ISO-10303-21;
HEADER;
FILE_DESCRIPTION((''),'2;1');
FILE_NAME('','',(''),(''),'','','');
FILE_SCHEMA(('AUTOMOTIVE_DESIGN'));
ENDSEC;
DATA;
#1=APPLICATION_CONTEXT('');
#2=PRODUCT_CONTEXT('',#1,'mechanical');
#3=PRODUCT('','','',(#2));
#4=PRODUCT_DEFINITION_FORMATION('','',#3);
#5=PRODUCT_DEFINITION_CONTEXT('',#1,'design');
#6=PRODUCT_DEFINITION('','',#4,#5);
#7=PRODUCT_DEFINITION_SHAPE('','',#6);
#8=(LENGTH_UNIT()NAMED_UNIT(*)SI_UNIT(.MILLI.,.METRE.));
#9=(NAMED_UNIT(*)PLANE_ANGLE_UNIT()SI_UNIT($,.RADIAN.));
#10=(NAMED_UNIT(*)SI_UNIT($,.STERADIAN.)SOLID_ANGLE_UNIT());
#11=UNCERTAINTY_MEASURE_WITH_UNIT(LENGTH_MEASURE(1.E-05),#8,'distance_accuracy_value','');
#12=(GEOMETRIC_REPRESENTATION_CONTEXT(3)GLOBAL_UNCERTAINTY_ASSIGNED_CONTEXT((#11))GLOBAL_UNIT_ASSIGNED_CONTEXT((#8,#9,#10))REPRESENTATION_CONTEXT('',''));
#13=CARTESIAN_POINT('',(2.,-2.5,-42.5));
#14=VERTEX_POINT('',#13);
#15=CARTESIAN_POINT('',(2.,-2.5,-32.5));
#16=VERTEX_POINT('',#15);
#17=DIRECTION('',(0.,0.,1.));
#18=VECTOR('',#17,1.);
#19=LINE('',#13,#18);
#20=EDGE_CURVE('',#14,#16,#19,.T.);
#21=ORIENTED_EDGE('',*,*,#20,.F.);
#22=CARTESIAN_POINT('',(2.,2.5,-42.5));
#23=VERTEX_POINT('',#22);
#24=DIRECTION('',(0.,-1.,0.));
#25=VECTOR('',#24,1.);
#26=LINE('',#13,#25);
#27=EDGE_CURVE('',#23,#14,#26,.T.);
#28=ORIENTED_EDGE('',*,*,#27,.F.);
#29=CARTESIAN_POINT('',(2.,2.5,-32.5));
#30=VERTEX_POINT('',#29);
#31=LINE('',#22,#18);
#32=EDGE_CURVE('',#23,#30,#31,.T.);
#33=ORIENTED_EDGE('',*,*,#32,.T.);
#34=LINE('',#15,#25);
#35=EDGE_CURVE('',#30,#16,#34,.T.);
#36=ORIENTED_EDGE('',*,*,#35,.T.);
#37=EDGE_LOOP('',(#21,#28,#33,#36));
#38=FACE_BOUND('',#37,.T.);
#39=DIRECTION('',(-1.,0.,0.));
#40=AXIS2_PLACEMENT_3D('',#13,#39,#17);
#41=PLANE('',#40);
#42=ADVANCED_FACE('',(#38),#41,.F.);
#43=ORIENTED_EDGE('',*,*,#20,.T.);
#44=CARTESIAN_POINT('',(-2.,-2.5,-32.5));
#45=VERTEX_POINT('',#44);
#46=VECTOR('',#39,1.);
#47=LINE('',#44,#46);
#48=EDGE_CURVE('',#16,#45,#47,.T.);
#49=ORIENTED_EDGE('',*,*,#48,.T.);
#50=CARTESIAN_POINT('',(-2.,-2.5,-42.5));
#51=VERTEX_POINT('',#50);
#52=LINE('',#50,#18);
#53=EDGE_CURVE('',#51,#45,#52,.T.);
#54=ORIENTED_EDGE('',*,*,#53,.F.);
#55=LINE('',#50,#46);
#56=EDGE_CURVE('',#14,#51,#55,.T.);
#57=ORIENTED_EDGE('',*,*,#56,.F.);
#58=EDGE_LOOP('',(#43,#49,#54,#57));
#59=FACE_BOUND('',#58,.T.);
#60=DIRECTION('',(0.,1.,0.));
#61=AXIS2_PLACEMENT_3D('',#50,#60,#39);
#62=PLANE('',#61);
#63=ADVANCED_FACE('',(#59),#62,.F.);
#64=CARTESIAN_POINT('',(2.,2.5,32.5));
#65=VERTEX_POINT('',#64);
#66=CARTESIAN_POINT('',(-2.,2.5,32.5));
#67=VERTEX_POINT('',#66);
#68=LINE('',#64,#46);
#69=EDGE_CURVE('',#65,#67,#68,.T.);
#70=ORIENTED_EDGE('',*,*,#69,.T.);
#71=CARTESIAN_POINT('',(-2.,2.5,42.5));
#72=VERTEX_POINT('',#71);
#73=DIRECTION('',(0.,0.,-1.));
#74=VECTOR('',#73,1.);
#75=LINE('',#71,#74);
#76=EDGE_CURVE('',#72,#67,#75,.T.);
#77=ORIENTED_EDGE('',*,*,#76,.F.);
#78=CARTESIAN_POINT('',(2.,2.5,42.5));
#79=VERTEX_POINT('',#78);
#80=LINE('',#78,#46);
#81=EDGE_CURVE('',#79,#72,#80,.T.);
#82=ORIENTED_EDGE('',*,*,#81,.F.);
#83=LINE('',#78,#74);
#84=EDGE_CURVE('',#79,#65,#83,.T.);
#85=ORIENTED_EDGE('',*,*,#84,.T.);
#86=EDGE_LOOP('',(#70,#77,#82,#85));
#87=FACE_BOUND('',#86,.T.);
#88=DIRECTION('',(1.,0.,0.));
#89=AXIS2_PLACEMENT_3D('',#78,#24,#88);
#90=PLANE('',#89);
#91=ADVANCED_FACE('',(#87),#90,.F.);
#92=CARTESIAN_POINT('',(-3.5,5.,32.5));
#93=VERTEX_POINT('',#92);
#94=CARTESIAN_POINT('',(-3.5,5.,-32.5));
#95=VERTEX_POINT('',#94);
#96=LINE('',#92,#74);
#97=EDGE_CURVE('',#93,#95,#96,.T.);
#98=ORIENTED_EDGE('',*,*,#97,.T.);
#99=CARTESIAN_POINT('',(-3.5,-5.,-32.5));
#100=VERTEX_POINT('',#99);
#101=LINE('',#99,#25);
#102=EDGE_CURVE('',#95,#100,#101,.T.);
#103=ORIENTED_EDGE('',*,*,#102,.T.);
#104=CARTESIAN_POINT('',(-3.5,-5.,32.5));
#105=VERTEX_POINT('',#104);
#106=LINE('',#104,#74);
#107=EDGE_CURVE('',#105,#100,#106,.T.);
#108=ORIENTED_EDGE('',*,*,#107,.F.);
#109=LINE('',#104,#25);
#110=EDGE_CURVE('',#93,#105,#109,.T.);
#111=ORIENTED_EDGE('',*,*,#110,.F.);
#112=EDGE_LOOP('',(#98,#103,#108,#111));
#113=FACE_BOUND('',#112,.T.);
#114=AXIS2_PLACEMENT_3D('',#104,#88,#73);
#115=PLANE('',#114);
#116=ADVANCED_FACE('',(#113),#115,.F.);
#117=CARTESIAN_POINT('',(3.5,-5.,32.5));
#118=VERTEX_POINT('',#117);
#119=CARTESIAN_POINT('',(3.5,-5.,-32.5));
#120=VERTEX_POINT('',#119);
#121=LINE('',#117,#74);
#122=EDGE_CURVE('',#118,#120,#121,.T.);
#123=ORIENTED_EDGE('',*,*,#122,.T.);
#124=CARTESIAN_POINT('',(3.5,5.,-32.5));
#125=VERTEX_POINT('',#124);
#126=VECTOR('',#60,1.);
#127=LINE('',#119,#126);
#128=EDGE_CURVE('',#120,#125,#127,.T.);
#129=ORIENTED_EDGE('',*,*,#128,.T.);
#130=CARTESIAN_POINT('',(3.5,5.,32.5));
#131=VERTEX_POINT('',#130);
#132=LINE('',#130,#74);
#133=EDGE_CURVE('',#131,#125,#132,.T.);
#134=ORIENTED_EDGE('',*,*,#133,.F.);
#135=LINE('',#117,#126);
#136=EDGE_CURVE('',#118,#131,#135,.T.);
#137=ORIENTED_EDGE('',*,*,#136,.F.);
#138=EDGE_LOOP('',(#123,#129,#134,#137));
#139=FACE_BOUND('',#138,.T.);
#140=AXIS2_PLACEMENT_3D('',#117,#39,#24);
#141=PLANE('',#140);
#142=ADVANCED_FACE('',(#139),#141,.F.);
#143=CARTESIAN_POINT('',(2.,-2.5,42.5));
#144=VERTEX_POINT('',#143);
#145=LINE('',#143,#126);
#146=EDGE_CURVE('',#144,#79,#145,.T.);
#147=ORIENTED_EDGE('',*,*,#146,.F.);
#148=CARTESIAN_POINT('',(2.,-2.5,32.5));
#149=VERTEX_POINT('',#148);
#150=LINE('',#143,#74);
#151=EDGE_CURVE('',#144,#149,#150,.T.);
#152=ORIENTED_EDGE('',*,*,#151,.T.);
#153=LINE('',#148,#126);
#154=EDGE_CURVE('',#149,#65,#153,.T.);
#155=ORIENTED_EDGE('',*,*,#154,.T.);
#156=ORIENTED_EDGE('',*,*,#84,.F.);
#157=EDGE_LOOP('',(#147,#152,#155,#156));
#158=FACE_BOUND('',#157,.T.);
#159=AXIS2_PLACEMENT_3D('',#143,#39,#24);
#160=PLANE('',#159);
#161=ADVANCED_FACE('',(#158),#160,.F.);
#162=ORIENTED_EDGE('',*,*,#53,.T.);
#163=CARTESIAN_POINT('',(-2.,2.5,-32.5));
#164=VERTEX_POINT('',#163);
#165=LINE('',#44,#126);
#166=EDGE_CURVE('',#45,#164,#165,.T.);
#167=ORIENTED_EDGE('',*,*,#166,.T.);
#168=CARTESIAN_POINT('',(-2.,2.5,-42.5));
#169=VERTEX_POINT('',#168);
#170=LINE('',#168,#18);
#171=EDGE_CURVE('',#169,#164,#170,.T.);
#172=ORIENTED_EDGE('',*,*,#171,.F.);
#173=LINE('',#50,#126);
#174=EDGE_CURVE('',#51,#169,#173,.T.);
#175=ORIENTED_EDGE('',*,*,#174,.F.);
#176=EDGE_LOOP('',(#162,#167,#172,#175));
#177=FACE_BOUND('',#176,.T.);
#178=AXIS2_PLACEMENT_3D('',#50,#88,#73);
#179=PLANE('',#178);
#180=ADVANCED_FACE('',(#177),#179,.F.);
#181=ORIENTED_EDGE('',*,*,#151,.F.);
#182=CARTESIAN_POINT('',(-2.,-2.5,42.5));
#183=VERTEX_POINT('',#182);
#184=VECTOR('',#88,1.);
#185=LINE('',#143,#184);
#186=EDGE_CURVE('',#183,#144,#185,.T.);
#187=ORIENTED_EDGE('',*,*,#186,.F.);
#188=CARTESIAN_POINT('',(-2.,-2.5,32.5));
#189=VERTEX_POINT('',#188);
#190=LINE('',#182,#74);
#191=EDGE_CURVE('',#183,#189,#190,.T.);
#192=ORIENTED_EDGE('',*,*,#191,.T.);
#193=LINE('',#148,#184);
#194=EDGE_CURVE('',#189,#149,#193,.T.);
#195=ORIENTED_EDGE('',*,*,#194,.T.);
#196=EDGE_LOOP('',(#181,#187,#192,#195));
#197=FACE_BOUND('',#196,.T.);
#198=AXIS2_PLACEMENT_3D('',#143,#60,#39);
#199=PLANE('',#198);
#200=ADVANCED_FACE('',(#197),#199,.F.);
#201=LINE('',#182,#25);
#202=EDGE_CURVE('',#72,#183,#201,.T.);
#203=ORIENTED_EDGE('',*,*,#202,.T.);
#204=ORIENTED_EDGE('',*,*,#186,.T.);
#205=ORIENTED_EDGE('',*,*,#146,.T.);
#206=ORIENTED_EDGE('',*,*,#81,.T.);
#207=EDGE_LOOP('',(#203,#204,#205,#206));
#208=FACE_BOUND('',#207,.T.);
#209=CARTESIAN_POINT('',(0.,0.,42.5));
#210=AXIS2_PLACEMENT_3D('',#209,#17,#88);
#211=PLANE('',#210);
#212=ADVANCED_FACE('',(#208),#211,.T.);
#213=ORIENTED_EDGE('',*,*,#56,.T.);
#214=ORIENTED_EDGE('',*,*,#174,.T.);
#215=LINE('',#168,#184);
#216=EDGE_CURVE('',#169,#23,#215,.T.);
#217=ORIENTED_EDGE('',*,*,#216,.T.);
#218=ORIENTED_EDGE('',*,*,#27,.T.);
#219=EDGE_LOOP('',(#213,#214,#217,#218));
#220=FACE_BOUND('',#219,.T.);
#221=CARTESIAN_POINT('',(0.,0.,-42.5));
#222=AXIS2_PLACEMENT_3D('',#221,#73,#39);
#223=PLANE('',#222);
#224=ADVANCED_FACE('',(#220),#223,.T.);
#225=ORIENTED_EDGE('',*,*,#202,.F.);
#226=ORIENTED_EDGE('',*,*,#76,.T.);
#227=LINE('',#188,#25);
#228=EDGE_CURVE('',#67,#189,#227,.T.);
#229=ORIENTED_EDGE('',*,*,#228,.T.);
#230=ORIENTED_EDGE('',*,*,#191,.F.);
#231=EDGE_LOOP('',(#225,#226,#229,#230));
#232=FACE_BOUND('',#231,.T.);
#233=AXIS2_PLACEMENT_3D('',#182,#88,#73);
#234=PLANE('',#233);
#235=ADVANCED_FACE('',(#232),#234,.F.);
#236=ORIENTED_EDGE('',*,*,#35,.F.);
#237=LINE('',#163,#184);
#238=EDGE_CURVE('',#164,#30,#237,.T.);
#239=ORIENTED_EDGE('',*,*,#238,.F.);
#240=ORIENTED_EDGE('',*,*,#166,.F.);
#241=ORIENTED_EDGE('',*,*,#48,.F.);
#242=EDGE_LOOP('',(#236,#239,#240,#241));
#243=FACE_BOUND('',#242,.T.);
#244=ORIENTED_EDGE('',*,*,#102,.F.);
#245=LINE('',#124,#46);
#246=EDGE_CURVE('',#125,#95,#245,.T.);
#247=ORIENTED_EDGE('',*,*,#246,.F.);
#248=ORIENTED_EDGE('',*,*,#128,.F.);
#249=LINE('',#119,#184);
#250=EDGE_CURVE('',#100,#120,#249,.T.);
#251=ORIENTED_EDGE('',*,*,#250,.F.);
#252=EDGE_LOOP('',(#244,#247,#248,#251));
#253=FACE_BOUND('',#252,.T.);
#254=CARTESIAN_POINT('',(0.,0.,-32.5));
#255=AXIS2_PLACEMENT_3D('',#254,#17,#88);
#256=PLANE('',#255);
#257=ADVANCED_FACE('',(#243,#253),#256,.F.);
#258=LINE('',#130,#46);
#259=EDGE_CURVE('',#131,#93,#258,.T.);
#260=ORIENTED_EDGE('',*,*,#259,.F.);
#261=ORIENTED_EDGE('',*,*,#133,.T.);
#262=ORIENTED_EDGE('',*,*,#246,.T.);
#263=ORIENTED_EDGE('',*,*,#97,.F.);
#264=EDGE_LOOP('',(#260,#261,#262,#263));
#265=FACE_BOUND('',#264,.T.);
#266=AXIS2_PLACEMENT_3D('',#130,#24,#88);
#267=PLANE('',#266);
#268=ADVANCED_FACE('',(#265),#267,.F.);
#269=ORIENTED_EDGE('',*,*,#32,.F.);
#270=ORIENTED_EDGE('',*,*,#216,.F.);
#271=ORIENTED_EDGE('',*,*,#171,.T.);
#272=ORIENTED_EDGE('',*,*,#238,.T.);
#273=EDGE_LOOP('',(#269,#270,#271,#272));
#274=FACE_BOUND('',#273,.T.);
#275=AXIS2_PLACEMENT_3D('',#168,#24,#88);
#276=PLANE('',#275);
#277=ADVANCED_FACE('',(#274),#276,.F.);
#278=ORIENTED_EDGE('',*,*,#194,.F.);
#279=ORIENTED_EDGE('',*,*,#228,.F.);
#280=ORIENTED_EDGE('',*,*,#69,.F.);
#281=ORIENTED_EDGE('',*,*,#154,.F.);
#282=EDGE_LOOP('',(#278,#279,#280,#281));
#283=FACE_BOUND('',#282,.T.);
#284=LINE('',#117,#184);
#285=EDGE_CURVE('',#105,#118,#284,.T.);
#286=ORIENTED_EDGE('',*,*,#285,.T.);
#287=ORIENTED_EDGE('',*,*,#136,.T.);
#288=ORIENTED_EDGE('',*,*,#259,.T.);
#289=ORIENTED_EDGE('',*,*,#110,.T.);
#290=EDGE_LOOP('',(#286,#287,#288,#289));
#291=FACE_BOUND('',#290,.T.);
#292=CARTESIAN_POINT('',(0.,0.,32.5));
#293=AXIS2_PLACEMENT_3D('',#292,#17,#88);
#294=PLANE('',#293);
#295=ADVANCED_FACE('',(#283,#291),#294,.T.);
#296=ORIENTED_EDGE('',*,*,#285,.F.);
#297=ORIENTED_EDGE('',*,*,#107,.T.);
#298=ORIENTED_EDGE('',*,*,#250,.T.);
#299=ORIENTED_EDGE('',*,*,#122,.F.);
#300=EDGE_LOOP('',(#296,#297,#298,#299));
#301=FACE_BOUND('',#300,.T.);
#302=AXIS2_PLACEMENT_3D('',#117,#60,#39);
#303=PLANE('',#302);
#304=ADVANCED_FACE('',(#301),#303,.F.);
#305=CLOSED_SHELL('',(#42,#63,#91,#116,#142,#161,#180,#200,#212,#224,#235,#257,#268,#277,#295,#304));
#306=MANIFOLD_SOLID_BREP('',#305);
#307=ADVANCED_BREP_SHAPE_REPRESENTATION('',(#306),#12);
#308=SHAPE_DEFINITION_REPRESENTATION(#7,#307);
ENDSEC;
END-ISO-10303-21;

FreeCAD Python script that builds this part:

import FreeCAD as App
import Part
import Sketcher

V = App.Vector
Q = App.Units.Quantity

doc = App.newDocument("Part")
body = doc.addObject("PartDesign::Body", "Body")

# Sketch on XY plane
sketch1 = body.newObject("Sketcher::SketchObject", "Sketch")
sketch1.AttachmentSupport = (doc.getObject("XY_Plane"), [""])
sketch1.MapMode = "FlatFace"
sketch1.addGeometry([
    Part.LineSegment(V(-4, 5, 0), V(-4, -5, 0)),
    Part.LineSegment(V(-4, -5, 0), V(4, -5, 0)),
    Part.LineSegment(V(4, -5, 0), V(4, 5, 0)),
    Part.LineSegment(V(4, 5, 0), V(-4, 5, 0)),
], False)
sketch1.addConstraint([
    Sketcher.Constraint("Coincident", 0, 2, 1, 1),
    Sketcher.Constraint("Coincident", 1, 2, 2, 1),
    Sketcher.Constraint("Coincident", 2, 2, 3, 1),
    Sketcher.Constraint("Coincident", 3, 2, 0, 1),
    Sketcher.Constraint("Vertical", 0),
    Sketcher.Constraint("Horizontal", 1),
    Sketcher.Constraint("Vertical", 2),
    Sketcher.Constraint("Horizontal", 3),
    Sketcher.Constraint("Symmetric", 0, 2, 2, 2, -1, 1),
    Sketcher.Constraint("DistanceX", 1, 1, 1, 2, Q("7 mm")),
    Sketcher.Constraint("DistanceY", 0, 2, 0, 1, Q("10 mm")),
])
pad1 = body.newObject("PartDesign::Pad", "Pad")
pad1.Profile = sketch1
pad1.Length = 65
pad1.Midplane = True

# Sketch on XY plane
sketch2 = body.newObject("Sketcher::SketchObject", "Sketch001")
sketch2.AttachmentSupport = (doc.getObject("XY_Plane"), [""])
sketch2.MapMode = "FlatFace"
sketch2.AttachmentOffset = App.Placement(V(0, 0, 32.5), App.Rotation())
sketch2.addGeometry([
    Part.LineSegment(V(-2, 2.5, 0), V(-2, -2.5, 0)),
    Part.LineSegment(V(-2, -2.5, 0), V(2, -2.5, 0)),
    Part.LineSegment(V(2, -2.5, 0), V(2, 2.5, 0)),
    Part.LineSegment(V(2, 2.5, 0), V(-2, 2.5, 0)),
], False)
sketch2.addConstraint([
    Sketcher.Constraint("Coincident", 0, 2, 1, 1),
    Sketcher.Constraint("Coincident", 1, 2, 2, 1),
    Sketcher.Constraint("Coincident", 2, 2, 3, 1),
    Sketcher.Constraint("Coincident", 3, 2, 0, 1),
    Sketcher.Constraint("Vertical", 0),
    Sketcher.Constraint("Horizontal", 1),
    Sketcher.Constraint("Vertical", 2),
    Sketcher.Constraint("Horizontal", 3),
    Sketcher.Constraint("Symmetric", 0, 2, 2, 2, -1, 1),
    Sketcher.Constraint("DistanceX", 1, 1, 1, 2, Q("4 mm")),
    Sketcher.Constraint("DistanceY", 0, 2, 0, 1, Q("5 mm")),
])
pad2 = body.newObject("PartDesign::Pad", "Pad001")
pad2.Profile = sketch2
pad2.Length = 10

# Sketch on XY plane
sketch3 = body.newObject("Sketcher::SketchObject", "Sketch002")
sketch3.AttachmentSupport = (doc.getObject("XY_Plane"), [""])
sketch3.MapMode = "FlatFace"
sketch3.AttachmentOffset = App.Placement(V(0, 0, -32.5), App.Rotation())
sketch3.addGeometry([
    Part.LineSegment(V(2, 2.5, 0), V(2, -2.5, 0)),
    Part.LineSegment(V(2, -2.5, 0), V(-2, -2.5, 0)),
    Part.LineSegment(V(-2, -2.5, 0), V(-2, 2.5, 0)),
    Part.LineSegment(V(-2, 2.5, 0), V(2, 2.5, 0)),
], False)
sketch3.addConstraint([
    Sketcher.Constraint("Coincident", 0, 2, 1, 1),
    Sketcher.Constraint("Coincident", 1, 2, 2, 1),
    Sketcher.Constraint("Coincident", 2, 2, 3, 1),
    Sketcher.Constraint("Coincident", 3, 2, 0, 1),
    Sketcher.Constraint("Vertical", 0),
    Sketcher.Constraint("Horizontal", 1),
    Sketcher.Constraint("Vertical", 2),
    Sketcher.Constraint("Horizontal", 3),
    Sketcher.Constraint("Symmetric", 0, 2, 2, 2, -1, 1),
    Sketcher.Constraint("DistanceX", 1, 2, 1, 1, Q("4 mm")),
    Sketcher.Constraint("DistanceY", 0, 2, 0, 1, Q("5 mm")),
])
pad3 = body.newObject("PartDesign::Pad", "Pad002")
pad3.Profile = sketch3
pad3.Length = 10
pad3.Reversed = True

doc.recompute()
